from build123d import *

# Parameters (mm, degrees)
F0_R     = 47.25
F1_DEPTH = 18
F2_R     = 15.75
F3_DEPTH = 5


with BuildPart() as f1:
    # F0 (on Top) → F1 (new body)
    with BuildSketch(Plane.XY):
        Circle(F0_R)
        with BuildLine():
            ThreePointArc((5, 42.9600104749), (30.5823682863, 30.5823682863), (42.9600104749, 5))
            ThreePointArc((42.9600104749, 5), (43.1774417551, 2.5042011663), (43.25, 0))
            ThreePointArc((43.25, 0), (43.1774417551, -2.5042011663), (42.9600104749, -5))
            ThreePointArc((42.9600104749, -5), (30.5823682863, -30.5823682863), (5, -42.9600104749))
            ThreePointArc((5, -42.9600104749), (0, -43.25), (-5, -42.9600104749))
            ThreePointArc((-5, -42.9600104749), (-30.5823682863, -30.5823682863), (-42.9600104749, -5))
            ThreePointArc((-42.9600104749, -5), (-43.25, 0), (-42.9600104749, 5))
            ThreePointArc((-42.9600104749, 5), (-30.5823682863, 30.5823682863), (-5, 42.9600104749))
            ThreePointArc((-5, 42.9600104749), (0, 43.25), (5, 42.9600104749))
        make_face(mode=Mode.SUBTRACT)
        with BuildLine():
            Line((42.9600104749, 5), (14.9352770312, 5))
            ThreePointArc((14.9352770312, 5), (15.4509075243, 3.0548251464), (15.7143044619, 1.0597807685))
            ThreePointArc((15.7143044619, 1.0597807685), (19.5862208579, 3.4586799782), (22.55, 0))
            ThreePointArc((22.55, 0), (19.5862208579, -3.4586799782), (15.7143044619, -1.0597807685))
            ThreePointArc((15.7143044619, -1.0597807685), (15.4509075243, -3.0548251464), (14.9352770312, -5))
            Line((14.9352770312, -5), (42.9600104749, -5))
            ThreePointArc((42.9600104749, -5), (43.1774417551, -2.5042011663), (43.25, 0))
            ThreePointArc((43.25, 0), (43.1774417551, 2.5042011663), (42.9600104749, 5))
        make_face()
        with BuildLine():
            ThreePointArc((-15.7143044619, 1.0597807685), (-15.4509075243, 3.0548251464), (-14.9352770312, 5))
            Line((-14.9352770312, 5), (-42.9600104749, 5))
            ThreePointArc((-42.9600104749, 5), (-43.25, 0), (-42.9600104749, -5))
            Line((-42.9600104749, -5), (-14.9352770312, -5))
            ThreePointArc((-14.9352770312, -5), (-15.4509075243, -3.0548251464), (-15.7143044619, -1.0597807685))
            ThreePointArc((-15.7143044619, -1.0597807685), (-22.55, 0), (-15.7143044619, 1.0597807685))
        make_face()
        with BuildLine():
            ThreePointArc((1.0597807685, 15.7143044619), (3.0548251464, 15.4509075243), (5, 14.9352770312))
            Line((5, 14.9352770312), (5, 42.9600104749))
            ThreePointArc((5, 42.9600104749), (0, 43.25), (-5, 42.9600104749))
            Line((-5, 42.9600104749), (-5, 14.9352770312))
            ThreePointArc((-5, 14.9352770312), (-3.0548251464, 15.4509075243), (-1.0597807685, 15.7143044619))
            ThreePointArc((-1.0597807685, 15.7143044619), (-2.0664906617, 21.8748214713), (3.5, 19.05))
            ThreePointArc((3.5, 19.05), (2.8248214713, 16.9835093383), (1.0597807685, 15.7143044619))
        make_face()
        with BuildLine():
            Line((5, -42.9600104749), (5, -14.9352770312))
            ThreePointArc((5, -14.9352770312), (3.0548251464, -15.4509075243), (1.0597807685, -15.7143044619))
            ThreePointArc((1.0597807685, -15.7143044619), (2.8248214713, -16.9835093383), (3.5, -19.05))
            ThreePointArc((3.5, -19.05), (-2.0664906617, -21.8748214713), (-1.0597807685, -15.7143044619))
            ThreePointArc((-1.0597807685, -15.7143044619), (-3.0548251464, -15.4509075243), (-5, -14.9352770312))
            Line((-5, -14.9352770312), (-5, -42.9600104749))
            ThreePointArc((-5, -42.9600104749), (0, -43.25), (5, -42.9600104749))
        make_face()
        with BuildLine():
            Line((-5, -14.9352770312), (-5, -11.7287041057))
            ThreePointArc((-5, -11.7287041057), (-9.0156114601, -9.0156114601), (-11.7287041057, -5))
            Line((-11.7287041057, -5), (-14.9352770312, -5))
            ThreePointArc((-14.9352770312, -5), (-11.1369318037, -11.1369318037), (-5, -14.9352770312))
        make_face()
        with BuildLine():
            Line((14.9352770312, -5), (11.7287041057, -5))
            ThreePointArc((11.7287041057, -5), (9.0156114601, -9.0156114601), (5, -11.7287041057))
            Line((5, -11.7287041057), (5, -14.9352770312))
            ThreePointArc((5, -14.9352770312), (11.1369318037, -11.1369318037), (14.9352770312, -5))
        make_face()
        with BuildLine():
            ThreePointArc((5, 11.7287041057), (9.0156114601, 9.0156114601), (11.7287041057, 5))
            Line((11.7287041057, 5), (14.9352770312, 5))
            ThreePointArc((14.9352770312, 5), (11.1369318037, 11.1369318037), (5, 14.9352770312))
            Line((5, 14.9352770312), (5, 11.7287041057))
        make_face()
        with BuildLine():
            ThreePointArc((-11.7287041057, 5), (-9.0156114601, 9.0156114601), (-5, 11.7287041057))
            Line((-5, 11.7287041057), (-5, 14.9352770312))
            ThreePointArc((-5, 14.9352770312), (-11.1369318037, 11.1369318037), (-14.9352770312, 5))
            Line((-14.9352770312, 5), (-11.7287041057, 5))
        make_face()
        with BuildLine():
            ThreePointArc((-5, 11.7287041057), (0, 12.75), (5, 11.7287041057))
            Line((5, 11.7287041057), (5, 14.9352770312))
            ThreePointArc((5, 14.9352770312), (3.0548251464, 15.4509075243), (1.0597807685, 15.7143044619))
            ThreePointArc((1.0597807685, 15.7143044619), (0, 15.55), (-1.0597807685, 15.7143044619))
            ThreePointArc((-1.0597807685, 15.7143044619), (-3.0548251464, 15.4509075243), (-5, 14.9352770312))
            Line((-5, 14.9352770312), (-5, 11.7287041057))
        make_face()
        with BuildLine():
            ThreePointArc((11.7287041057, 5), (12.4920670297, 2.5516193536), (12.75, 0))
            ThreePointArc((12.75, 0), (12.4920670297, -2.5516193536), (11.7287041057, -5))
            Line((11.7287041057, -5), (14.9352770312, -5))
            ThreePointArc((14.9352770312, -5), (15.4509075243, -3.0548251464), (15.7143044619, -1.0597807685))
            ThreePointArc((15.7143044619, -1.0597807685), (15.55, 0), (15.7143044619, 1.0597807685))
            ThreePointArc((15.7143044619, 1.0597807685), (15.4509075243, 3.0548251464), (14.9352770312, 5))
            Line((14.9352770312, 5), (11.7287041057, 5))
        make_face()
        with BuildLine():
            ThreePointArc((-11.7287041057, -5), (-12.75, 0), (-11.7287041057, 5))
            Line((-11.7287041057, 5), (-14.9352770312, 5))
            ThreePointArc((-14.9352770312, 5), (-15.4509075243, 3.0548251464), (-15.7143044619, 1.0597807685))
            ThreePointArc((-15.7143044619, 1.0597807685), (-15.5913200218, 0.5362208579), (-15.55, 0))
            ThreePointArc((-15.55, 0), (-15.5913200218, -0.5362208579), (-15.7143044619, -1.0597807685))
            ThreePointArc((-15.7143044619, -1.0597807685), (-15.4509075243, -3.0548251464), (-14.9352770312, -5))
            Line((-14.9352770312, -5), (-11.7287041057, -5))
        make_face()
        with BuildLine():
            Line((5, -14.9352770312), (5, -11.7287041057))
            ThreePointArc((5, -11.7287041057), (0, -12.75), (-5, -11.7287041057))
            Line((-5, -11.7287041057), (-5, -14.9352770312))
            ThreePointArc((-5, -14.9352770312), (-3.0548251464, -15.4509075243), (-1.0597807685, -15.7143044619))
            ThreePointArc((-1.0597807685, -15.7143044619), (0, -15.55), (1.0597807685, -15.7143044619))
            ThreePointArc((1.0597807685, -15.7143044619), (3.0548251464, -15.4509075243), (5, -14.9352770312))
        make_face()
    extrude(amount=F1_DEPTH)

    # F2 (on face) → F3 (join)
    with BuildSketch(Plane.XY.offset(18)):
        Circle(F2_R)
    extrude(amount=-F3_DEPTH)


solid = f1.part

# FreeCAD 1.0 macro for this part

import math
import FreeCAD as App
import Part
import Sketcher

V = App.Vector
Q = App.Units.Quantity

doc = App.newDocument("Part")
params = doc.addObject("Spreadsheet::Sheet", "Params")
for row, (alias, value) in enumerate([
    ("sketch1_diameter", "94.5 mm"),
    ("sketch1_radius", "3.5 mm"),
    ("sketch1_radius2", "15.75 mm"),
    ("sketch1_radius3", "43.25 mm"),
    ("sketch1_radius4", "12.75 mm"),
    ("pad1_length", "18 mm"),
    ("sketch2_diameter", "31.5 mm"),
    ("pad2_length", "5 mm"),
], start=1):
    params.set(f"A{row}", alias)
    params.set(f"B{row}", "=" + value)
    params.setAlias(f"B{row}", alias)

body = doc.addObject("PartDesign::Body", "Body")

# Sketch on XY plane
sketch1 = doc.addObject("Sketcher::SketchObject", "Sketch")
body.addObject(sketch1)
sketch1.AttachmentSupport = (doc.XY_Plane, [""])
sketch1.MapMode = "FlatFace"
sketch1.addGeometry(Part.Circle(V(0, 0, 0), V(0, 0, 1), 47.2), False)
sketch1.addGeometry(Part.ArcOfCircle(Part.Circle(V(0, 0, 0), V(0, 0, 1), 15.7), math.radians(-161), math.radians(-109)), False)
sketch1.addGeometry(Part.LineSegment(V(-5, -14.9, 0), V(-5, -43, 0)), False)
sketch1.addGeometry(Part.ArcOfCircle(Part.Circle(V(0, 0, 0), V(0, 0, 1), 43.2), math.radians(-173), math.radians(-97)), False)
sketch1.addGeometry(Part.LineSegment(V(-43, -5, 0), V(-14.9, -5, 0)), False)
sketch1.addGeometry(Part.ArcOfCircle(Part.Circle(V(-19.1, 0, 0), V(0, 0, 1), 3.5), math.radians(18), math.radians(342)), False)
sketch1.addGeometry(Part.ArcOfCircle(Part.Circle(V(-19.1, 0, 0), V(0, 0, 1), 3.5), math.radians(0), math.radians(17.63)), False)
sketch1.addGeometry(Part.ArcOfCircle(Part.Circle(V(-19.1, 0, 0), V(0, 0, 1), 3.5), math.radians(-17.63), math.radians(0)), False)
sketch1.addGeometry(Part.ArcOfCircle(Part.Circle(V(0, 0, 0), V(0, 0, 1), 12.8), math.radians(-67), math.radians(-23)), False)
sketch1.addGeometry(Part.ArcOfCircle(Part.Circle(V(0, 0, 0), V(0, 0, 1), 12.8), math.radians(-113), math.radians(-67)), False)
sketch1.addGeometry(Part.ArcOfCircle(Part.Circle(V(0, 0, 0), V(0, 0, 1), 12.8), math.radians(-157), math.radians(-113)), False)
sketch1.addGeometry(Part.ArcOfCircle(Part.Circle(V(0, 0, 0), V(0, 0, 1), 12.8), math.radians(157), math.radians(203)), False)
sketch1.addGeometry(Part.ArcOfCircle(Part.Circle(V(0, 0, 0), V(0, 0, 1), 12.8), math.radians(113), math.radians(157)), False)
sketch1.addGeometry(Part.ArcOfCircle(Part.Circle(V(0, 0, 0), V(0, 0, 1), 12.8), math.radians(67), math.radians(113)), False)
sketch1.addGeometry(Part.ArcOfCircle(Part.Circle(V(0, 0, 0), V(0, 0, 1), 12.8), math.radians(23), math.radians(67)), False)
sketch1.addGeometry(Part.ArcOfCircle(Part.Circle(V(0, 0, 0), V(0, 0, 1), 12.7), math.radians(0), math.radians(23)), False)
sketch1.addGeometry(Part.ArcOfCircle(Part.Circle(V(0, 0, 0), V(0, 0, 1), 12.7), math.radians(-23), math.radians(0)), False)
sketch1.addGeometry(Part.ArcOfCircle(Part.Circle(V(0, -19.1, 0), V(0, 0, 1), 3.5), math.radians(108), math.radians(360)), False)
sketch1.addGeometry(Part.ArcOfCircle(Part.Circle(V(0, -19.1, 0), V(0, 0, 1), 3.5), math.radians(72), math.radians(108)), False)
sketch1.addGeometry(Part.ArcOfCircle(Part.Circle(V(0, -19.1, 0), V(0, 0, 1), 3.5), math.radians(0), math.radians(72)), False)
sketch1.addGeometry(Part.LineSegment(V(5, -43, 0), V(5, -14.9, 0)), False)
sketch1.addGeometry(Part.ArcOfCircle(Part.Circle(V(0, 0, 0), V(0, 0, 1), 15.7), math.radians(-71), math.radians(-19)), False)
sketch1.addGeometry(Part.LineSegment(V(14.9, -5, 0), V(43, -5, 0)), False)
sketch1.addGeometry(Part.ArcOfCircle(Part.Circle(V(0, 0, 0), V(0, 0, 1), 43.2), math.radians(-83), math.radians(-7)), False)
sketch1.addGeometry(Part.ArcOfCircle(Part.Circle(V(19.1, 0, 0), V(0, 0, 1), 3.5), math.radians(-162), math.radians(0)), False)
sketch1.addGeometry(Part.ArcOfCircle(Part.Circle(V(19.1, 0, 0), V(0, 0, 1), 3.5), math.radians(162), math.radians(198)), False)
sketch1.addGeometry(Part.ArcOfCircle(Part.Circle(V(19.1, 0, 0), V(0, 0, 1), 3.5), math.radians(0), math.radians(162)), False)
sketch1.addGeometry(Part.ArcOfCircle(Part.Circle(V(0, 0, 0), V(0, 0, 1), 15.7), math.radians(109), math.radians(161)), False)
sketch1.addGeometry(Part.LineSegment(V(-14.9, 5, 0), V(-43, 5, 0)), False)
sketch1.addGeometry(Part.ArcOfCircle(Part.Circle(V(0, 0, 0), V(0, 0, 1), 43.2), math.radians(97), math.radians(173)), False)
sketch1.addGeometry(Part.LineSegment(V(-5, 43, 0), V(-5, 14.9, 0)), False)
sketch1.addGeometry(Part.ArcOfCircle(Part.Circle(V(0, 19.1, 0), V(0, 0, 1), 3.5), math.radians(0), math.radians(252)), False)
sketch1.addGeometry(Part.ArcOfCircle(Part.Circle(V(0, 19.1, 0), V(0, 0, 1), 3.5), math.radians(-72), math.radians(0)), False)
sketch1.addGeometry(Part.ArcOfCircle(Part.Circle(V(0, 19.1, 0), V(0, 0, 1), 3.5), math.radians(-108), math.radians(-72)), False)
sketch1.addGeometry(Part.LineSegment(V(43, 5, 0), V(14.9, 5, 0)), False)
sketch1.addGeometry(Part.ArcOfCircle(Part.Circle(V(0, 0, 0), V(0, 0, 1), 15.7), math.radians(19), math.radians(71)), False)
sketch1.addGeometry(Part.LineSegment(V(5, 14.9, 0), V(5, 43, 0)), False)
sketch1.addGeometry(Part.ArcOfCircle(Part.Circle(V(0, 0, 0), V(0, 0, 1), 43.2), math.radians(7), math.radians(83)), False)
sketch1.addConstraint(Sketcher.Constraint("Coincident", 1, 2, 2, 1))
sketch1.addConstraint(Sketcher.Constraint("Coincident", 2, 2, 3, 2))
sketch1.addConstraint(Sketcher.Constraint("Coincident", 3, 1, 4, 1))
sketch1.addConstraint(Sketcher.Constraint("Coincident", 4, 2, 1, 1))
sketch1.addConstraint(Sketcher.Constraint("Tangent", 5, 1, 6, 2))
sketch1.addConstraint(Sketcher.Constraint("Tangent", 6, 1, 7, 2))
sketch1.addConstraint(Sketcher.Constraint("Tangent", 7, 1, 5, 2))
sketch1.addConstraint(Sketcher.Constraint("Tangent", 8, 1, 9, 2))
sketch1.addConstraint(Sketcher.Constraint("Tangent", 9, 1, 10, 2))
sketch1.addConstraint(Sketcher.Constraint("Tangent", 10, 1, 11, 2))
sketch1.addConstraint(Sketcher.Constraint("Tangent", 11, 1, 12, 2))
sketch1.addConstraint(Sketcher.Constraint("Tangent", 12, 1, 13, 2))
sketch1.addConstraint(Sketcher.Constraint("Tangent", 13, 1, 14, 2))
sketch1.addConstraint(Sketcher.Constraint("Tangent", 14, 1, 15, 2))
sketch1.addConstraint(Sketcher.Constraint("Tangent", 15, 1, 16, 2))
sketch1.addConstraint(Sketcher.Constraint("Tangent", 16, 1, 8, 2))
sketch1.addConstraint(Sketcher.Constraint("Tangent", 17, 1, 18, 2))
sketch1.addConstraint(Sketcher.Constraint("Tangent", 18, 1, 19, 2))
sketch1.addConstraint(Sketcher.Constraint("Tangent", 19, 1, 17, 2))
sketch1.addConstraint(Sketcher.Constraint("Coincident", 20, 2, 21, 1))
sketch1.addConstraint(Sketcher.Constraint("Coincident", 21, 2, 22, 1))
sketch1.addConstraint(Sketcher.Constraint("Coincident", 22, 2, 23, 2))
sketch1.addConstraint(Sketcher.Constraint("Coincident", 23, 1, 20, 1))
sketch1.addConstraint(Sketcher.Constraint("Tangent", 24, 1, 25, 2))
sketch1.addConstraint(Sketcher.Constraint("Tangent", 25, 1, 26, 2))
sketch1.addConstraint(Sketcher.Constraint("Tangent", 26, 1, 24, 2))
sketch1.addConstraint(Sketcher.Constraint("Coincident", 27, 2, 28, 1))
sketch1.addConstraint(Sketcher.Constraint("Coincident", 28, 2, 29, 2))
sketch1.addConstraint(Sketcher.Constraint("Coincident", 29, 1, 30, 1))
sketch1.addConstraint(Sketcher.Constraint("Coincident", 30, 2, 27, 1))
sketch1.addConstraint(Sketcher.Constraint("Tangent", 31, 1, 32, 2))
sketch1.addConstraint(Sketcher.Constraint("Tangent", 32, 1, 33, 2))
sketch1.addConstraint(Sketcher.Constraint("Tangent", 33, 1, 31, 2))
sketch1.addConstraint(Sketcher.Constraint("Coincident", 34, 2, 35, 1))
sketch1.addConstraint(Sketcher.Constraint("Coincident", 35, 2, 36, 1))
sketch1.addConstraint(Sketcher.Constraint("Coincident", 36, 2, 37, 2))
sketch1.addConstraint(Sketcher.Constraint("Coincident", 37, 1, 34, 1))
sketch1.addConstraint(Sketcher.Constraint("Vertical", 2))
sketch1.addConstraint(Sketcher.Constraint("Horizontal", 4))
sketch1.addConstraint(Sketcher.Constraint("Vertical", 20))
sketch1.addConstraint(Sketcher.Constraint("Horizontal", 22))
sketch1.addConstraint(Sketcher.Constraint("Horizontal", 28))
sketch1.addConstraint(Sketcher.Constraint("Vertical", 30))
sketch1.addConstraint(Sketcher.Constraint("Horizontal", 34))
sketch1.addConstraint(Sketcher.Constraint("Vertical", 36))
sketch1.addConstraint(Sketcher.Constraint("Coincident", 0, 3, -1, 1))
sketch1.addConstraint(Sketcher.Constraint("Coincident", 1, 3, -1, 1))
sketch1.addConstraint(Sketcher.Constraint("Coincident", 3, 3, -1, 1))
sketch1.addConstraint(Sketcher.Constraint("Coincident", 8, 3, -1, 1))
sketch1.addConstraint(Sketcher.Constraint("Coincident", 10, 3, -1, 1))
sketch1.addConstraint(Sketcher.Constraint("Coincident", 12, 3, -1, 1))
sketch1.addConstraint(Sketcher.Constraint("Coincident", 14, 3, -1, 1))
sketch1.addConstraint(Sketcher.Constraint("Coincident", 21, 3, -1, 1))
sketch1.addConstraint(Sketcher.Constraint("Coincident", 23, 3, -1, 1))
sketch1.addConstraint(Sketcher.Constraint("Coincident", 27, 3, -1, 1))
sketch1.addConstraint(Sketcher.Constraint("Coincident", 29, 3, -1, 1))
sketch1.addConstraint(Sketcher.Constraint("Coincident", 35, 3, -1, 1))
sketch1.addConstraint(Sketcher.Constraint("Coincident", 37, 3, -1, 1))
sketch1.addConstraint(Sketcher.Constraint("Equal", 7, 17))
sketch1.addConstraint(Sketcher.Constraint("Equal", 1, 21))
sketch1.addConstraint(Sketcher.Constraint("Equal", 3, 23))
sketch1.addConstraint(Sketcher.Constraint("Equal", 19, 24))
sketch1.addConstraint(Sketcher.Constraint("Equal", 21, 27))
sketch1.addConstraint(Sketcher.Constraint("Equal", 23, 29))
sketch1.addConstraint(Sketcher.Constraint("Equal", 26, 31))
sketch1.addConstraint(Sketcher.Constraint("Equal", 27, 35))
sketch1.addConstraint(Sketcher.Constraint("Equal", 29, 37))
sketch1.addConstraint(Sketcher.Constraint("Symmetric", 5, 3, 24, 3, -1, 1))
sketch1.addConstraint(Sketcher.Constraint("Symmetric", 17, 3, 31, 3, -1, 1))
sketch1.addConstraint(Sketcher.Constraint("Symmetric", 17, 1, 18, 1, -2))
sketch1.addConstraint(Sketcher.Constraint("Symmetric", 7, 1, 24, 1, -2))
sketch1.addConstraint(Sketcher.Constraint("PointOnObject", 6, 1, -1))
sketch1.addConstraint(Sketcher.Constraint("PointOnObject", 15, 1, -1))
sketch1.addConstraint(Sketcher.Constraint("PointOnObject", 26, 1, -1))
sketch1.addConstraint(Sketcher.Constraint("Horizontal", 8, 1, 9, 1))
sketch1.addConstraint(Sketcher.Constraint("Horizontal", 4, 2, 10, 1))
sketch1.addConstraint(Sketcher.Constraint("Horizontal", 12, 1, 13, 1))
sketch1.addConstraint(Sketcher.Constraint("Horizontal", 11, 1, 14, 1))
sketch1.addConstraint(Sketcher.Constraint("Horizontal", 10, 1, 16, 1))
sketch1.addConstraint(Sketcher.Constraint("Horizontal", 18, 3, 19, 1))
sketch1.addConstraint(Sketcher.Constraint("Horizontal", 1, 2, 20, 2))
sketch1.addConstraint(Sketcher.Constraint("Horizontal", 16, 1, 21, 2))
sketch1.addConstraint(Sketcher.Constraint("Horizontal", 5, 1, 25, 1))
sketch1.addConstraint(Sketcher.Constraint("Horizontal", 14, 1, 27, 2))
sketch1.addConstraint(Sketcher.Constraint("Horizontal", 33, 3, 31, 1))
sketch1.addConstraint(Sketcher.Constraint("Horizontal", 32, 1, 33, 1))
sketch1.addConstraint(Sketcher.Constraint("Horizontal", 28, 2, 34, 2))
sketch1.addConstraint(Sketcher.Constraint("Horizontal", 30, 2, 35, 2))
sketch1.addConstraint(Sketcher.Constraint("Vertical", 5, 1, 7, 1))
sketch1.addConstraint(Sketcher.Constraint("Vertical", 2, 2, 9, 1))
sketch1.addConstraint(Sketcher.Constraint("Vertical", 10, 1, 11, 1))
sketch1.addConstraint(Sketcher.Constraint("Vertical", 9, 1, 12, 1))
sketch1.addConstraint(Sketcher.Constraint("Vertical", 12, 1, 29, 1))
sketch1.addConstraint(Sketcher.Constraint("Vertical", 18, 1, 32, 1))
sketch1.addConstraint(Sketcher.Constraint("Equal", 34, 2))
sketch1.addConstraint(Sketcher.Constraint("Diameter", 0, Q("94.5 mm")))
sketch1.addConstraint(Sketcher.Constraint("Radius", 5, Q("3.5 mm")))
sketch1.addConstraint(Sketcher.Constraint("Radius", 1, Q("15.75 mm")))
sketch1.addConstraint(Sketcher.Constraint("Radius", 3, Q("43.25 mm")))
sketch1.addConstraint(Sketcher.Constraint("Radius", 8, Q("12.75 mm")))
sketch1.addConstraint(Sketcher.Constraint("DistanceX", 1, 2, -1, 1, Q("5 mm")))
sketch1.addConstraint(Sketcher.Constraint("DistanceX", 5, 3, -1, 1, Q("19.05 mm")))
sketch1.addConstraint(Sketcher.Constraint("DistanceY", 17, 3, -1, 1, Q("19.05 mm")))
sketch1.addConstraint(Sketcher.Constraint("DistanceY", -1, 1, 5, 1, Q("1.059781 mm")))
sketch1.addConstraint(Sketcher.Constraint("DistanceX", 17, 1, -1, 1, Q("1.059781 mm")))
sketch1.setExpression("Constraints[95]", "Params.sketch1_diameter")
sketch1.setExpression("Constraints[96]", "Params.sketch1_radius")
sketch1.setExpression("Constraints[97]", "Params.sketch1_radius2")
sketch1.setExpression("Constraints[98]", "Params.sketch1_radius3")
sketch1.setExpression("Constraints[99]", "Params.sketch1_radius4")
pad1 = doc.addObject("PartDesign::Pad", "Pad")
body.addObject(pad1)
pad1.Profile = sketch1
pad1.setExpression("Length", "Params.pad1_length")

# Sketch on XY plane
sketch2 = doc.addObject("Sketcher::SketchObject", "Sketch001")
body.addObject(sketch2)
sketch2.AttachmentSupport = (doc.XY_Plane, [""])
sketch2.MapMode = "FlatFace"
sketch2.AttachmentOffset = App.Placement(V(0, 0, 18), App.Rotation())
sketch2.addGeometry(Part.Circle(V(0, 0, 0), V(0, 0, 1), 16), False)
sketch2.addConstraint(Sketcher.Constraint("Coincident", 0, 3, -1, 1))
sketch2.addConstraint(Sketcher.Constraint("Diameter", 0, Q("31.5 mm")))
sketch2.setExpression("Constraints[1]", "Params.sketch2_diameter")
pad2 = doc.addObject("PartDesign::Pad", "Pad001")
body.addObject(pad2)
pad2.Profile = sketch2
pad2.setExpression("Length", "Params.pad2_length")
pad2.Reversed = True

doc.recompute()
